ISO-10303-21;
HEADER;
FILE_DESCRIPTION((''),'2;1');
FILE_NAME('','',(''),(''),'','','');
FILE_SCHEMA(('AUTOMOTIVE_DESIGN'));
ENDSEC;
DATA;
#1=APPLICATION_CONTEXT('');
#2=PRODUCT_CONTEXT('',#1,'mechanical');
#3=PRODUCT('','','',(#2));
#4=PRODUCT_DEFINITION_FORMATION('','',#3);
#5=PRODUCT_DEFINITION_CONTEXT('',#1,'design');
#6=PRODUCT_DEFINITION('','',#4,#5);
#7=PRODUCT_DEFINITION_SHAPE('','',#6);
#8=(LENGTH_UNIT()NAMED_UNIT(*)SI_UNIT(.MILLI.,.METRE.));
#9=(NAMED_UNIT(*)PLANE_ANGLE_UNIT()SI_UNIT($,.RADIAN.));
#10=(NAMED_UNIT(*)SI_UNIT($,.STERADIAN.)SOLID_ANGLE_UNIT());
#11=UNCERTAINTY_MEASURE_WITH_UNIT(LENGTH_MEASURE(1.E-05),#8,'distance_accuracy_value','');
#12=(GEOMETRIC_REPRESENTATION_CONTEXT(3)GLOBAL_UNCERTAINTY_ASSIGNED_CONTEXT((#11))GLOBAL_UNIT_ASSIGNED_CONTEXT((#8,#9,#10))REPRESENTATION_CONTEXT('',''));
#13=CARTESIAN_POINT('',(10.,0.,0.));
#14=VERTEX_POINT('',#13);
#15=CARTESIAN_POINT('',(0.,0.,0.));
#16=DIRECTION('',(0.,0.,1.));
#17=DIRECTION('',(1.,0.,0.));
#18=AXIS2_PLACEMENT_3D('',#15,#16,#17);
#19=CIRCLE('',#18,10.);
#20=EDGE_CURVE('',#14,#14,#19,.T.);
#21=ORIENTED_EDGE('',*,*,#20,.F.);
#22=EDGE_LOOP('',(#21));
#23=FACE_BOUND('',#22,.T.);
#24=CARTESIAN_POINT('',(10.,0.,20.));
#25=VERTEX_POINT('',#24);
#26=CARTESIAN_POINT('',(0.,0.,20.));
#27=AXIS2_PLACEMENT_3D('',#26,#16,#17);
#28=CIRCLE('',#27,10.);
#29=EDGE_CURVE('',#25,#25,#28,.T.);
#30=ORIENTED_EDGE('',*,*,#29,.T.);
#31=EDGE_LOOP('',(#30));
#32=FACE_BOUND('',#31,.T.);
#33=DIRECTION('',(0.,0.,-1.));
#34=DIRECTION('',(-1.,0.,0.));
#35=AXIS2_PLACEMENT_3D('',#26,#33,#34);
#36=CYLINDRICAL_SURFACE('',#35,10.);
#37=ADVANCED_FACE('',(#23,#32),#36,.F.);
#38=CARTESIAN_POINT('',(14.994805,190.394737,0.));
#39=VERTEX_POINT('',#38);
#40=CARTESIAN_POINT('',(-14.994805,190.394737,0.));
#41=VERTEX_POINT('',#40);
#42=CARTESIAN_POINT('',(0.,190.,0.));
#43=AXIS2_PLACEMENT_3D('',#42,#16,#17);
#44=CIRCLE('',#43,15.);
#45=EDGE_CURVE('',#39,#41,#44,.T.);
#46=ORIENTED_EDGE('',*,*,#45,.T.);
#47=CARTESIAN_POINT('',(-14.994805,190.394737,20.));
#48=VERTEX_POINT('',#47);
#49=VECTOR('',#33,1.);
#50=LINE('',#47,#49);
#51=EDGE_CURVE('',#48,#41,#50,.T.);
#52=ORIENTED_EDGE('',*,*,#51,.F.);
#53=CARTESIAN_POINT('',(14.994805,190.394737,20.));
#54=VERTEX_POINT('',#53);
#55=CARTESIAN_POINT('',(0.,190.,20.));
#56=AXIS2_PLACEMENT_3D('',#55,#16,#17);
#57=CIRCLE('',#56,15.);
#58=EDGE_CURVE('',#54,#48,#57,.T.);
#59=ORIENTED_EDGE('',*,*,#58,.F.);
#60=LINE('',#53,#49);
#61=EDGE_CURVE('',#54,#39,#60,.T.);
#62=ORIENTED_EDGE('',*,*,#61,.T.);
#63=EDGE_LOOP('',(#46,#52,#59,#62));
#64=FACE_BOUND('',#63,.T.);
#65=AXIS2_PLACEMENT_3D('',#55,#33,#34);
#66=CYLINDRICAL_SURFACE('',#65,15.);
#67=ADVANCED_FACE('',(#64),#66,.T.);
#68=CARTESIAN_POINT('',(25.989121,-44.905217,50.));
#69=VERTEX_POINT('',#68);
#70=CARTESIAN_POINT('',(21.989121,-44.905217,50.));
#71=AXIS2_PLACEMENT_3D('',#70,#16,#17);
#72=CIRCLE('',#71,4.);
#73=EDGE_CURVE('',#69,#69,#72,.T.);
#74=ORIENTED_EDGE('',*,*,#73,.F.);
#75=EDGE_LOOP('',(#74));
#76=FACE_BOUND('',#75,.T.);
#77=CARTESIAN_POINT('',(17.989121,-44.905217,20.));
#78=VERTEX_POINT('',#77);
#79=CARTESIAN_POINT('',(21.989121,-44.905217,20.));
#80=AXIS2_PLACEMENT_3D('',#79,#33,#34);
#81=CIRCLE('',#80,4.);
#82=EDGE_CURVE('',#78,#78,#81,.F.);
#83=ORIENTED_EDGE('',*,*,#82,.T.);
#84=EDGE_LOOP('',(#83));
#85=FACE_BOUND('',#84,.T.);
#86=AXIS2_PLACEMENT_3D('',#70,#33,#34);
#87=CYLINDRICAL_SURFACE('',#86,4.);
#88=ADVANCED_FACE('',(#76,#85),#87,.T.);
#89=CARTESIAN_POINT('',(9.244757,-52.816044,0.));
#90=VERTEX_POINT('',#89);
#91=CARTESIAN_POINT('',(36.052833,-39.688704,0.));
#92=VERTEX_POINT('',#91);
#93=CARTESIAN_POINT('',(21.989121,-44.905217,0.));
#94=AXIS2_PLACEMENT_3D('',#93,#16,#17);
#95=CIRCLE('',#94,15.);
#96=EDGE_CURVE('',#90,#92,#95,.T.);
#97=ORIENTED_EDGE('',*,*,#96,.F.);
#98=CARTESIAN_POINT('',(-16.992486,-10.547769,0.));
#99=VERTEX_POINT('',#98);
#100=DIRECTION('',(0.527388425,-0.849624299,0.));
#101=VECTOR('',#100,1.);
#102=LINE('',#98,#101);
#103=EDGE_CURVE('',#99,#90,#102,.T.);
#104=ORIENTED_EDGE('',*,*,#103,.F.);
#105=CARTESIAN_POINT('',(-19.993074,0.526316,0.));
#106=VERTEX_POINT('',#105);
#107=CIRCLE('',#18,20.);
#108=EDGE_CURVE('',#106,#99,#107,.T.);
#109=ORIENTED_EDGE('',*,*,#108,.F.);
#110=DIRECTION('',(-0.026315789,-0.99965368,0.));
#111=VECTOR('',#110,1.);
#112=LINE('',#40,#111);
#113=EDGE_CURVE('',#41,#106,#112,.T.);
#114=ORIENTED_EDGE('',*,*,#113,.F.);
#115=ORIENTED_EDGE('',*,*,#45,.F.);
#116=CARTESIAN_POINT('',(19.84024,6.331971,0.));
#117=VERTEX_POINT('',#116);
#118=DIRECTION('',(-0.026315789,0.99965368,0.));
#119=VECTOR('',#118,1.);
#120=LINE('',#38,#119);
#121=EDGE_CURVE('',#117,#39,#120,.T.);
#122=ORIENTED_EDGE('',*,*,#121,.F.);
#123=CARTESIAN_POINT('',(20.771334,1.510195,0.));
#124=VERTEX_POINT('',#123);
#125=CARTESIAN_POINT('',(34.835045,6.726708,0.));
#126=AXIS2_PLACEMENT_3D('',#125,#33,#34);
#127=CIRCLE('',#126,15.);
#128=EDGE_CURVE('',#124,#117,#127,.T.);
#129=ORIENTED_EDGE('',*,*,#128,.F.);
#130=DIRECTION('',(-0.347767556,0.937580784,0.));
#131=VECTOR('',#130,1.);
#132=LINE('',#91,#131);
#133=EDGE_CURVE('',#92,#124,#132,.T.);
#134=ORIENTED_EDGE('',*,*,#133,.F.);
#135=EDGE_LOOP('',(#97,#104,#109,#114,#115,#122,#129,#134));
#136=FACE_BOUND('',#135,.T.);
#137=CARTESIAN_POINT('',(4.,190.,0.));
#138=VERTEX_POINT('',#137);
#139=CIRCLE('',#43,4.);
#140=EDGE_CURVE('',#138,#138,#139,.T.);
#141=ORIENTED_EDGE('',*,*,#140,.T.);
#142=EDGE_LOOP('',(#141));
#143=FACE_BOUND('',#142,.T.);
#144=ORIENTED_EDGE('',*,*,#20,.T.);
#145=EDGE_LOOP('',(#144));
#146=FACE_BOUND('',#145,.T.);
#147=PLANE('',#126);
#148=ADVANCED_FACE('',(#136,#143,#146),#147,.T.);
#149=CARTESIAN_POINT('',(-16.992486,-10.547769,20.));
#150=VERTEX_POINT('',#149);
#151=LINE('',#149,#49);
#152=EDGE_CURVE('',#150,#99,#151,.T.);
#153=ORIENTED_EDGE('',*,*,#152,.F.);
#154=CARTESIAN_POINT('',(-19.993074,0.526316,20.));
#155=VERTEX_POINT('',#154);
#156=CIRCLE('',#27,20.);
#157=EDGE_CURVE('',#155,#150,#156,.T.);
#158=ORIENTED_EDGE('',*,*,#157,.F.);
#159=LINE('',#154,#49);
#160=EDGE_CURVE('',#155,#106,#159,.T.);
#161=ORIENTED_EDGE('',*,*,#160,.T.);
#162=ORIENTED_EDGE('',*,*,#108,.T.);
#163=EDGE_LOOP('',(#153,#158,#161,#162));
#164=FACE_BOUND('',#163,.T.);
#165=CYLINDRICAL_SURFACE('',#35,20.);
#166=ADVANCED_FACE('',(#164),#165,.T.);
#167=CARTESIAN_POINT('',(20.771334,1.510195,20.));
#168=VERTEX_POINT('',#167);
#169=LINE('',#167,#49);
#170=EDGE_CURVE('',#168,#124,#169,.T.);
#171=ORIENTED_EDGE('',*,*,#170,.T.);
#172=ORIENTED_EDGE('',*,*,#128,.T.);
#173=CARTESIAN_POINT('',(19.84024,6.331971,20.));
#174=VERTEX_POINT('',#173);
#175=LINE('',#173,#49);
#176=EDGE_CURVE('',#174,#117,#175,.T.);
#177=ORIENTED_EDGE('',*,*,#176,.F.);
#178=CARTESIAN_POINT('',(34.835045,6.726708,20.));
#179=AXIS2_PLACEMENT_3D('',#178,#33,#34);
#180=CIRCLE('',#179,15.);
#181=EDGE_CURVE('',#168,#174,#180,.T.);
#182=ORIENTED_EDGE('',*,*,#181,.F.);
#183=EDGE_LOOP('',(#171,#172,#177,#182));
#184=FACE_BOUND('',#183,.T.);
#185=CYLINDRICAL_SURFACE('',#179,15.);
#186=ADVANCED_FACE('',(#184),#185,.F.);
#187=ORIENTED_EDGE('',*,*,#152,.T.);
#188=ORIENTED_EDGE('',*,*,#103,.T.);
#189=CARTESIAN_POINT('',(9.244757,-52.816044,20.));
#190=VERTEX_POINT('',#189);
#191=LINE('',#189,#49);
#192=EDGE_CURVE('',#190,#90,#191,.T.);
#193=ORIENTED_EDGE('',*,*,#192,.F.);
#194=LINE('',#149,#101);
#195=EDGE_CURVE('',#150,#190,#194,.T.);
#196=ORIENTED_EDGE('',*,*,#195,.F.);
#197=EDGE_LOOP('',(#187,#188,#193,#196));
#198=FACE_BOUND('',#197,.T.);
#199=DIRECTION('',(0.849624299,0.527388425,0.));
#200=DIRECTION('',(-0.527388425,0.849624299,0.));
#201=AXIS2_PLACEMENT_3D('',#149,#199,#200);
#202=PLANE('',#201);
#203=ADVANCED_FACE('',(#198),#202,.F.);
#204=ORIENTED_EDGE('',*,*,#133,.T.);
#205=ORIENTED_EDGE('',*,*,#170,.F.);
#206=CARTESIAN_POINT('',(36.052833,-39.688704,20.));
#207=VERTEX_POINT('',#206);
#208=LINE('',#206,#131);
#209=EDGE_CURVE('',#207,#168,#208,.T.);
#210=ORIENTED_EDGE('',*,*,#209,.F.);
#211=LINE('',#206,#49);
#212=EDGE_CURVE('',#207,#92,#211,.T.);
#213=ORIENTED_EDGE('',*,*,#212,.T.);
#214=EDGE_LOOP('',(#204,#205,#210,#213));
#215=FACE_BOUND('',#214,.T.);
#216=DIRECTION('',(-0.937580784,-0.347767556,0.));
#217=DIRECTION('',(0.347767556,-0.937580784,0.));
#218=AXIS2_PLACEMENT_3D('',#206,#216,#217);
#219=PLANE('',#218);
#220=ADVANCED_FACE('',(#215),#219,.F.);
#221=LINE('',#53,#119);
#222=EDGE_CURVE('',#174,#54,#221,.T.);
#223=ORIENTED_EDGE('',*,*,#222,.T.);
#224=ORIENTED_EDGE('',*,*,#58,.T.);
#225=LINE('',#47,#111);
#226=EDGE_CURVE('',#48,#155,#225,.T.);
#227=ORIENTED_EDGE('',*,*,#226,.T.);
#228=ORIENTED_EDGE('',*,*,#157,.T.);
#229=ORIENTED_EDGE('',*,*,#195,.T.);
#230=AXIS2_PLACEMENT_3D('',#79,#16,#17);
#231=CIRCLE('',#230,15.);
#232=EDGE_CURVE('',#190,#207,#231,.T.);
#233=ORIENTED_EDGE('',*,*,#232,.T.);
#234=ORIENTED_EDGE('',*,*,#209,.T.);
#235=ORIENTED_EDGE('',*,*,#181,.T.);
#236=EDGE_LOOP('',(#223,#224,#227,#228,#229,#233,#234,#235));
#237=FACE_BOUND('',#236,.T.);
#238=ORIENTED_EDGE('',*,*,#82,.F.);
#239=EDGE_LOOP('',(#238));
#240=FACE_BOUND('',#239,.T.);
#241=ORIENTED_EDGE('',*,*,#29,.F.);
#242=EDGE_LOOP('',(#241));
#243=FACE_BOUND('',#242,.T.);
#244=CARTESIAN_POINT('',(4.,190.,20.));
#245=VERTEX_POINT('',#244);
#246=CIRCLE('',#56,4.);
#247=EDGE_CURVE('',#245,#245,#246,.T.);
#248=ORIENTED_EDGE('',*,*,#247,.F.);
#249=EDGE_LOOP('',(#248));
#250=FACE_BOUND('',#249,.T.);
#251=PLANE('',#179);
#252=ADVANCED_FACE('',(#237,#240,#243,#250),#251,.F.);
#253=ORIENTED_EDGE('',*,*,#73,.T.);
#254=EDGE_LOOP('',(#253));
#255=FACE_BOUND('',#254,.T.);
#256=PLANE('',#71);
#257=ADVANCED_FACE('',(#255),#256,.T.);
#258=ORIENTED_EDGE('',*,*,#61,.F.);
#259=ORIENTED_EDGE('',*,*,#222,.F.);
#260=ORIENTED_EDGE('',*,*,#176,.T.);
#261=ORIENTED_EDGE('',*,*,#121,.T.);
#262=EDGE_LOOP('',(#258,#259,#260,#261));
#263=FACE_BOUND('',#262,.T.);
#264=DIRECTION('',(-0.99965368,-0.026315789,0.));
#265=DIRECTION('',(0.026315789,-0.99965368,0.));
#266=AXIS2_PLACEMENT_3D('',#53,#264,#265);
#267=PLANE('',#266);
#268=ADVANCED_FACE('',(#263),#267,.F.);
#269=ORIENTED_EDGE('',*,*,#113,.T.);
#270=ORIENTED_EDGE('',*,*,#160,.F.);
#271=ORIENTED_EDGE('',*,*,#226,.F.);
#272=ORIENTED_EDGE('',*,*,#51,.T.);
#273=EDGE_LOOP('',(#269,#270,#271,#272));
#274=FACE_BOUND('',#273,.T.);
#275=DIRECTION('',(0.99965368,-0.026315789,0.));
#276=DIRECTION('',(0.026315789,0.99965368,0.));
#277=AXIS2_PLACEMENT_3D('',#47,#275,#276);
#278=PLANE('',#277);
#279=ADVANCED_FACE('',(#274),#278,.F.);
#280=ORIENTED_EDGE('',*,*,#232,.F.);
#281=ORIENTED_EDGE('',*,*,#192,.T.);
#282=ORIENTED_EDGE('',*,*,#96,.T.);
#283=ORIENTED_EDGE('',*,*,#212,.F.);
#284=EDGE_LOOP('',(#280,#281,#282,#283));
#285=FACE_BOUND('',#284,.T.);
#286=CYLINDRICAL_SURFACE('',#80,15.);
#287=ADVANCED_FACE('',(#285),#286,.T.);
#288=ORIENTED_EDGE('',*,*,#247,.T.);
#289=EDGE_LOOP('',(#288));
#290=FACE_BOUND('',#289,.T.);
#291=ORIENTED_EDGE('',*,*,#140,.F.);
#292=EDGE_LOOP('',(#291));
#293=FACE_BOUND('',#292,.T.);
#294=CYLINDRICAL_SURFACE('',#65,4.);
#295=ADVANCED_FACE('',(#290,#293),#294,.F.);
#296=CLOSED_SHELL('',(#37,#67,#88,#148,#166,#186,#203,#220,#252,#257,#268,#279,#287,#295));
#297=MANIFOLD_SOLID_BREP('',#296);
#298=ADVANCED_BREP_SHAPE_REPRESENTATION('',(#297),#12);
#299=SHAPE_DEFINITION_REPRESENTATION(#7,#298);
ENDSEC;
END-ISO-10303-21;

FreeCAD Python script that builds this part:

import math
import FreeCAD as App
import Part
import Sketcher
Q = App.Units.Quantity

doc = App.newDocument("Part")
body = doc.addObject("PartDesign::Body", "Body")

# Sketch on XY plane
sketch1 = doc.addObject("Sketcher::SketchObject", "Sketch")
body.addObject(sketch1)
sketch1.AttachmentSupport = (doc.XY_Plane, [""])
sketch1.MapMode = "FlatFace"
sketch1.addGeometry([
    Part.LineSegment(App.Vector(-15, 190.4, 0), App.Vector(-20, 0.5, 0)),  # 0
    Part.ArcOfCircle(Part.Circle(App.Vector(0, 0, 0), App.Vector(0, 0, 1), 20), math.radians(178), math.radians(212)),  # 1
    Part.LineSegment(App.Vector(-17, -10.5, 0), App.Vector(9.2, -52.8, 0)),  # 2
    Part.ArcOfCircle(Part.Circle(App.Vector(22, -44.9, 0), App.Vector(0, 0, 1), 15), math.radians(-148), math.radians(20)),  # 3
    Part.LineSegment(App.Vector(36.1, -39.7, 0), App.Vector(20.8, 1.5, 0)),  # 4
    Part.ArcOfCircle(Part.Circle(App.Vector(34.8, 6.7, 0), App.Vector(0, 0, 1), 15), math.radians(-178.49), math.radians(-159.65)),  # 5
    Part.LineSegment(App.Vector(19.8, 6.3, 0), App.Vector(15, 190.4, 0)),  # 6
    Part.ArcOfCircle(Part.Circle(App.Vector(0, 190, 0), App.Vector(0, 0, 1), 15), math.radians(2), math.radians(178)),  # 7
    Part.Circle(App.Vector(0, 0, 0), App.Vector(0, 0, 1), 10),  # 8
    Part.Circle(App.Vector(0, 190, 0), App.Vector(0, 0, 1), 4),  # 9
], False)
sketch1.addConstraint([
    Sketcher.Constraint("Tangent", 0, 2, 1, 1),
    Sketcher.Constraint("Tangent", 1, 2, 2, 1),
    Sketcher.Constraint("Tangent", 2, 2, 3, 1),
    Sketcher.Constraint("Tangent", 3, 2, 4, 1),
    Sketcher.Constraint("Tangent", 4, 2, 5, 2),
    Sketcher.Constraint("Tangent", 5, 1, 6, 1),
    Sketcher.Constraint("Tangent", 6, 2, 7, 1),
    Sketcher.Constraint("Tangent", 7, 2, 0, 1),
    Sketcher.Constraint("Coincident", 1, 3, -1, 1),
    Sketcher.Constraint("Coincident", 8, 3, -1, 1),
    Sketcher.Constraint("Coincident", 9, 3, 7, 3),
    Sketcher.Constraint("Equal", 3, 5),
    Sketcher.Constraint("Equal", 5, 7),
    Sketcher.Constraint("Symmetric", 6, 2, 7, 2, -2),
    Sketcher.Constraint("Diameter", 8, Q("20 mm")),
    Sketcher.Constraint("Diameter", 9, Q("8 mm")),
    Sketcher.Constraint("Radius", 1, Q("20 mm")),
    Sketcher.Constraint("Radius", 3, Q("15 mm")),
    Sketcher.Constraint("DistanceY", -1, 1, 7, 3, Q("190 mm")),
    Sketcher.Constraint("Distance", 2, Q("49.749372 mm")),
    Sketcher.Constraint("DistanceX", -1, 1, 3, 3, Q("21.989121 mm")),
    Sketcher.Constraint("DistanceX", -1, 1, 5, 1, Q("19.84024 mm")),
])
pad1 = doc.addObject("PartDesign::Pad", "Pad")
body.addObject(pad1)
pad1.Profile = sketch1
pad1.Length = 20

# Sketch on XY plane
sketch2 = doc.addObject("Sketcher::SketchObject", "Sketch001")
body.addObject(sketch2)
sketch2.AttachmentSupport = (doc.XY_Plane, [""])
sketch2.MapMode = "FlatFace"
sketch2.AttachmentOffset = App.Placement(App.Vector(0, 0, 20), App.Rotation())
sketch2.addGeometry(Part.Circle(App.Vector(22, -44.9, 0), App.Vector(0, 0, 1), 4), False)
sketch2.addConstraint([
    Sketcher.Constraint("Diameter", 0, Q("8 mm")),
    Sketcher.Constraint("DistanceX", -1, 1, 0, 3, Q("21.989121 mm")),
    Sketcher.Constraint("DistanceY", 0, 3, -1, 1, Q("44.905217 mm")),
])
pad2 = doc.addObject("PartDesign::Pad", "Pad001")
body.addObject(pad2)
pad2.Profile = sketch2
pad2.Length = 30

doc.recompute()
